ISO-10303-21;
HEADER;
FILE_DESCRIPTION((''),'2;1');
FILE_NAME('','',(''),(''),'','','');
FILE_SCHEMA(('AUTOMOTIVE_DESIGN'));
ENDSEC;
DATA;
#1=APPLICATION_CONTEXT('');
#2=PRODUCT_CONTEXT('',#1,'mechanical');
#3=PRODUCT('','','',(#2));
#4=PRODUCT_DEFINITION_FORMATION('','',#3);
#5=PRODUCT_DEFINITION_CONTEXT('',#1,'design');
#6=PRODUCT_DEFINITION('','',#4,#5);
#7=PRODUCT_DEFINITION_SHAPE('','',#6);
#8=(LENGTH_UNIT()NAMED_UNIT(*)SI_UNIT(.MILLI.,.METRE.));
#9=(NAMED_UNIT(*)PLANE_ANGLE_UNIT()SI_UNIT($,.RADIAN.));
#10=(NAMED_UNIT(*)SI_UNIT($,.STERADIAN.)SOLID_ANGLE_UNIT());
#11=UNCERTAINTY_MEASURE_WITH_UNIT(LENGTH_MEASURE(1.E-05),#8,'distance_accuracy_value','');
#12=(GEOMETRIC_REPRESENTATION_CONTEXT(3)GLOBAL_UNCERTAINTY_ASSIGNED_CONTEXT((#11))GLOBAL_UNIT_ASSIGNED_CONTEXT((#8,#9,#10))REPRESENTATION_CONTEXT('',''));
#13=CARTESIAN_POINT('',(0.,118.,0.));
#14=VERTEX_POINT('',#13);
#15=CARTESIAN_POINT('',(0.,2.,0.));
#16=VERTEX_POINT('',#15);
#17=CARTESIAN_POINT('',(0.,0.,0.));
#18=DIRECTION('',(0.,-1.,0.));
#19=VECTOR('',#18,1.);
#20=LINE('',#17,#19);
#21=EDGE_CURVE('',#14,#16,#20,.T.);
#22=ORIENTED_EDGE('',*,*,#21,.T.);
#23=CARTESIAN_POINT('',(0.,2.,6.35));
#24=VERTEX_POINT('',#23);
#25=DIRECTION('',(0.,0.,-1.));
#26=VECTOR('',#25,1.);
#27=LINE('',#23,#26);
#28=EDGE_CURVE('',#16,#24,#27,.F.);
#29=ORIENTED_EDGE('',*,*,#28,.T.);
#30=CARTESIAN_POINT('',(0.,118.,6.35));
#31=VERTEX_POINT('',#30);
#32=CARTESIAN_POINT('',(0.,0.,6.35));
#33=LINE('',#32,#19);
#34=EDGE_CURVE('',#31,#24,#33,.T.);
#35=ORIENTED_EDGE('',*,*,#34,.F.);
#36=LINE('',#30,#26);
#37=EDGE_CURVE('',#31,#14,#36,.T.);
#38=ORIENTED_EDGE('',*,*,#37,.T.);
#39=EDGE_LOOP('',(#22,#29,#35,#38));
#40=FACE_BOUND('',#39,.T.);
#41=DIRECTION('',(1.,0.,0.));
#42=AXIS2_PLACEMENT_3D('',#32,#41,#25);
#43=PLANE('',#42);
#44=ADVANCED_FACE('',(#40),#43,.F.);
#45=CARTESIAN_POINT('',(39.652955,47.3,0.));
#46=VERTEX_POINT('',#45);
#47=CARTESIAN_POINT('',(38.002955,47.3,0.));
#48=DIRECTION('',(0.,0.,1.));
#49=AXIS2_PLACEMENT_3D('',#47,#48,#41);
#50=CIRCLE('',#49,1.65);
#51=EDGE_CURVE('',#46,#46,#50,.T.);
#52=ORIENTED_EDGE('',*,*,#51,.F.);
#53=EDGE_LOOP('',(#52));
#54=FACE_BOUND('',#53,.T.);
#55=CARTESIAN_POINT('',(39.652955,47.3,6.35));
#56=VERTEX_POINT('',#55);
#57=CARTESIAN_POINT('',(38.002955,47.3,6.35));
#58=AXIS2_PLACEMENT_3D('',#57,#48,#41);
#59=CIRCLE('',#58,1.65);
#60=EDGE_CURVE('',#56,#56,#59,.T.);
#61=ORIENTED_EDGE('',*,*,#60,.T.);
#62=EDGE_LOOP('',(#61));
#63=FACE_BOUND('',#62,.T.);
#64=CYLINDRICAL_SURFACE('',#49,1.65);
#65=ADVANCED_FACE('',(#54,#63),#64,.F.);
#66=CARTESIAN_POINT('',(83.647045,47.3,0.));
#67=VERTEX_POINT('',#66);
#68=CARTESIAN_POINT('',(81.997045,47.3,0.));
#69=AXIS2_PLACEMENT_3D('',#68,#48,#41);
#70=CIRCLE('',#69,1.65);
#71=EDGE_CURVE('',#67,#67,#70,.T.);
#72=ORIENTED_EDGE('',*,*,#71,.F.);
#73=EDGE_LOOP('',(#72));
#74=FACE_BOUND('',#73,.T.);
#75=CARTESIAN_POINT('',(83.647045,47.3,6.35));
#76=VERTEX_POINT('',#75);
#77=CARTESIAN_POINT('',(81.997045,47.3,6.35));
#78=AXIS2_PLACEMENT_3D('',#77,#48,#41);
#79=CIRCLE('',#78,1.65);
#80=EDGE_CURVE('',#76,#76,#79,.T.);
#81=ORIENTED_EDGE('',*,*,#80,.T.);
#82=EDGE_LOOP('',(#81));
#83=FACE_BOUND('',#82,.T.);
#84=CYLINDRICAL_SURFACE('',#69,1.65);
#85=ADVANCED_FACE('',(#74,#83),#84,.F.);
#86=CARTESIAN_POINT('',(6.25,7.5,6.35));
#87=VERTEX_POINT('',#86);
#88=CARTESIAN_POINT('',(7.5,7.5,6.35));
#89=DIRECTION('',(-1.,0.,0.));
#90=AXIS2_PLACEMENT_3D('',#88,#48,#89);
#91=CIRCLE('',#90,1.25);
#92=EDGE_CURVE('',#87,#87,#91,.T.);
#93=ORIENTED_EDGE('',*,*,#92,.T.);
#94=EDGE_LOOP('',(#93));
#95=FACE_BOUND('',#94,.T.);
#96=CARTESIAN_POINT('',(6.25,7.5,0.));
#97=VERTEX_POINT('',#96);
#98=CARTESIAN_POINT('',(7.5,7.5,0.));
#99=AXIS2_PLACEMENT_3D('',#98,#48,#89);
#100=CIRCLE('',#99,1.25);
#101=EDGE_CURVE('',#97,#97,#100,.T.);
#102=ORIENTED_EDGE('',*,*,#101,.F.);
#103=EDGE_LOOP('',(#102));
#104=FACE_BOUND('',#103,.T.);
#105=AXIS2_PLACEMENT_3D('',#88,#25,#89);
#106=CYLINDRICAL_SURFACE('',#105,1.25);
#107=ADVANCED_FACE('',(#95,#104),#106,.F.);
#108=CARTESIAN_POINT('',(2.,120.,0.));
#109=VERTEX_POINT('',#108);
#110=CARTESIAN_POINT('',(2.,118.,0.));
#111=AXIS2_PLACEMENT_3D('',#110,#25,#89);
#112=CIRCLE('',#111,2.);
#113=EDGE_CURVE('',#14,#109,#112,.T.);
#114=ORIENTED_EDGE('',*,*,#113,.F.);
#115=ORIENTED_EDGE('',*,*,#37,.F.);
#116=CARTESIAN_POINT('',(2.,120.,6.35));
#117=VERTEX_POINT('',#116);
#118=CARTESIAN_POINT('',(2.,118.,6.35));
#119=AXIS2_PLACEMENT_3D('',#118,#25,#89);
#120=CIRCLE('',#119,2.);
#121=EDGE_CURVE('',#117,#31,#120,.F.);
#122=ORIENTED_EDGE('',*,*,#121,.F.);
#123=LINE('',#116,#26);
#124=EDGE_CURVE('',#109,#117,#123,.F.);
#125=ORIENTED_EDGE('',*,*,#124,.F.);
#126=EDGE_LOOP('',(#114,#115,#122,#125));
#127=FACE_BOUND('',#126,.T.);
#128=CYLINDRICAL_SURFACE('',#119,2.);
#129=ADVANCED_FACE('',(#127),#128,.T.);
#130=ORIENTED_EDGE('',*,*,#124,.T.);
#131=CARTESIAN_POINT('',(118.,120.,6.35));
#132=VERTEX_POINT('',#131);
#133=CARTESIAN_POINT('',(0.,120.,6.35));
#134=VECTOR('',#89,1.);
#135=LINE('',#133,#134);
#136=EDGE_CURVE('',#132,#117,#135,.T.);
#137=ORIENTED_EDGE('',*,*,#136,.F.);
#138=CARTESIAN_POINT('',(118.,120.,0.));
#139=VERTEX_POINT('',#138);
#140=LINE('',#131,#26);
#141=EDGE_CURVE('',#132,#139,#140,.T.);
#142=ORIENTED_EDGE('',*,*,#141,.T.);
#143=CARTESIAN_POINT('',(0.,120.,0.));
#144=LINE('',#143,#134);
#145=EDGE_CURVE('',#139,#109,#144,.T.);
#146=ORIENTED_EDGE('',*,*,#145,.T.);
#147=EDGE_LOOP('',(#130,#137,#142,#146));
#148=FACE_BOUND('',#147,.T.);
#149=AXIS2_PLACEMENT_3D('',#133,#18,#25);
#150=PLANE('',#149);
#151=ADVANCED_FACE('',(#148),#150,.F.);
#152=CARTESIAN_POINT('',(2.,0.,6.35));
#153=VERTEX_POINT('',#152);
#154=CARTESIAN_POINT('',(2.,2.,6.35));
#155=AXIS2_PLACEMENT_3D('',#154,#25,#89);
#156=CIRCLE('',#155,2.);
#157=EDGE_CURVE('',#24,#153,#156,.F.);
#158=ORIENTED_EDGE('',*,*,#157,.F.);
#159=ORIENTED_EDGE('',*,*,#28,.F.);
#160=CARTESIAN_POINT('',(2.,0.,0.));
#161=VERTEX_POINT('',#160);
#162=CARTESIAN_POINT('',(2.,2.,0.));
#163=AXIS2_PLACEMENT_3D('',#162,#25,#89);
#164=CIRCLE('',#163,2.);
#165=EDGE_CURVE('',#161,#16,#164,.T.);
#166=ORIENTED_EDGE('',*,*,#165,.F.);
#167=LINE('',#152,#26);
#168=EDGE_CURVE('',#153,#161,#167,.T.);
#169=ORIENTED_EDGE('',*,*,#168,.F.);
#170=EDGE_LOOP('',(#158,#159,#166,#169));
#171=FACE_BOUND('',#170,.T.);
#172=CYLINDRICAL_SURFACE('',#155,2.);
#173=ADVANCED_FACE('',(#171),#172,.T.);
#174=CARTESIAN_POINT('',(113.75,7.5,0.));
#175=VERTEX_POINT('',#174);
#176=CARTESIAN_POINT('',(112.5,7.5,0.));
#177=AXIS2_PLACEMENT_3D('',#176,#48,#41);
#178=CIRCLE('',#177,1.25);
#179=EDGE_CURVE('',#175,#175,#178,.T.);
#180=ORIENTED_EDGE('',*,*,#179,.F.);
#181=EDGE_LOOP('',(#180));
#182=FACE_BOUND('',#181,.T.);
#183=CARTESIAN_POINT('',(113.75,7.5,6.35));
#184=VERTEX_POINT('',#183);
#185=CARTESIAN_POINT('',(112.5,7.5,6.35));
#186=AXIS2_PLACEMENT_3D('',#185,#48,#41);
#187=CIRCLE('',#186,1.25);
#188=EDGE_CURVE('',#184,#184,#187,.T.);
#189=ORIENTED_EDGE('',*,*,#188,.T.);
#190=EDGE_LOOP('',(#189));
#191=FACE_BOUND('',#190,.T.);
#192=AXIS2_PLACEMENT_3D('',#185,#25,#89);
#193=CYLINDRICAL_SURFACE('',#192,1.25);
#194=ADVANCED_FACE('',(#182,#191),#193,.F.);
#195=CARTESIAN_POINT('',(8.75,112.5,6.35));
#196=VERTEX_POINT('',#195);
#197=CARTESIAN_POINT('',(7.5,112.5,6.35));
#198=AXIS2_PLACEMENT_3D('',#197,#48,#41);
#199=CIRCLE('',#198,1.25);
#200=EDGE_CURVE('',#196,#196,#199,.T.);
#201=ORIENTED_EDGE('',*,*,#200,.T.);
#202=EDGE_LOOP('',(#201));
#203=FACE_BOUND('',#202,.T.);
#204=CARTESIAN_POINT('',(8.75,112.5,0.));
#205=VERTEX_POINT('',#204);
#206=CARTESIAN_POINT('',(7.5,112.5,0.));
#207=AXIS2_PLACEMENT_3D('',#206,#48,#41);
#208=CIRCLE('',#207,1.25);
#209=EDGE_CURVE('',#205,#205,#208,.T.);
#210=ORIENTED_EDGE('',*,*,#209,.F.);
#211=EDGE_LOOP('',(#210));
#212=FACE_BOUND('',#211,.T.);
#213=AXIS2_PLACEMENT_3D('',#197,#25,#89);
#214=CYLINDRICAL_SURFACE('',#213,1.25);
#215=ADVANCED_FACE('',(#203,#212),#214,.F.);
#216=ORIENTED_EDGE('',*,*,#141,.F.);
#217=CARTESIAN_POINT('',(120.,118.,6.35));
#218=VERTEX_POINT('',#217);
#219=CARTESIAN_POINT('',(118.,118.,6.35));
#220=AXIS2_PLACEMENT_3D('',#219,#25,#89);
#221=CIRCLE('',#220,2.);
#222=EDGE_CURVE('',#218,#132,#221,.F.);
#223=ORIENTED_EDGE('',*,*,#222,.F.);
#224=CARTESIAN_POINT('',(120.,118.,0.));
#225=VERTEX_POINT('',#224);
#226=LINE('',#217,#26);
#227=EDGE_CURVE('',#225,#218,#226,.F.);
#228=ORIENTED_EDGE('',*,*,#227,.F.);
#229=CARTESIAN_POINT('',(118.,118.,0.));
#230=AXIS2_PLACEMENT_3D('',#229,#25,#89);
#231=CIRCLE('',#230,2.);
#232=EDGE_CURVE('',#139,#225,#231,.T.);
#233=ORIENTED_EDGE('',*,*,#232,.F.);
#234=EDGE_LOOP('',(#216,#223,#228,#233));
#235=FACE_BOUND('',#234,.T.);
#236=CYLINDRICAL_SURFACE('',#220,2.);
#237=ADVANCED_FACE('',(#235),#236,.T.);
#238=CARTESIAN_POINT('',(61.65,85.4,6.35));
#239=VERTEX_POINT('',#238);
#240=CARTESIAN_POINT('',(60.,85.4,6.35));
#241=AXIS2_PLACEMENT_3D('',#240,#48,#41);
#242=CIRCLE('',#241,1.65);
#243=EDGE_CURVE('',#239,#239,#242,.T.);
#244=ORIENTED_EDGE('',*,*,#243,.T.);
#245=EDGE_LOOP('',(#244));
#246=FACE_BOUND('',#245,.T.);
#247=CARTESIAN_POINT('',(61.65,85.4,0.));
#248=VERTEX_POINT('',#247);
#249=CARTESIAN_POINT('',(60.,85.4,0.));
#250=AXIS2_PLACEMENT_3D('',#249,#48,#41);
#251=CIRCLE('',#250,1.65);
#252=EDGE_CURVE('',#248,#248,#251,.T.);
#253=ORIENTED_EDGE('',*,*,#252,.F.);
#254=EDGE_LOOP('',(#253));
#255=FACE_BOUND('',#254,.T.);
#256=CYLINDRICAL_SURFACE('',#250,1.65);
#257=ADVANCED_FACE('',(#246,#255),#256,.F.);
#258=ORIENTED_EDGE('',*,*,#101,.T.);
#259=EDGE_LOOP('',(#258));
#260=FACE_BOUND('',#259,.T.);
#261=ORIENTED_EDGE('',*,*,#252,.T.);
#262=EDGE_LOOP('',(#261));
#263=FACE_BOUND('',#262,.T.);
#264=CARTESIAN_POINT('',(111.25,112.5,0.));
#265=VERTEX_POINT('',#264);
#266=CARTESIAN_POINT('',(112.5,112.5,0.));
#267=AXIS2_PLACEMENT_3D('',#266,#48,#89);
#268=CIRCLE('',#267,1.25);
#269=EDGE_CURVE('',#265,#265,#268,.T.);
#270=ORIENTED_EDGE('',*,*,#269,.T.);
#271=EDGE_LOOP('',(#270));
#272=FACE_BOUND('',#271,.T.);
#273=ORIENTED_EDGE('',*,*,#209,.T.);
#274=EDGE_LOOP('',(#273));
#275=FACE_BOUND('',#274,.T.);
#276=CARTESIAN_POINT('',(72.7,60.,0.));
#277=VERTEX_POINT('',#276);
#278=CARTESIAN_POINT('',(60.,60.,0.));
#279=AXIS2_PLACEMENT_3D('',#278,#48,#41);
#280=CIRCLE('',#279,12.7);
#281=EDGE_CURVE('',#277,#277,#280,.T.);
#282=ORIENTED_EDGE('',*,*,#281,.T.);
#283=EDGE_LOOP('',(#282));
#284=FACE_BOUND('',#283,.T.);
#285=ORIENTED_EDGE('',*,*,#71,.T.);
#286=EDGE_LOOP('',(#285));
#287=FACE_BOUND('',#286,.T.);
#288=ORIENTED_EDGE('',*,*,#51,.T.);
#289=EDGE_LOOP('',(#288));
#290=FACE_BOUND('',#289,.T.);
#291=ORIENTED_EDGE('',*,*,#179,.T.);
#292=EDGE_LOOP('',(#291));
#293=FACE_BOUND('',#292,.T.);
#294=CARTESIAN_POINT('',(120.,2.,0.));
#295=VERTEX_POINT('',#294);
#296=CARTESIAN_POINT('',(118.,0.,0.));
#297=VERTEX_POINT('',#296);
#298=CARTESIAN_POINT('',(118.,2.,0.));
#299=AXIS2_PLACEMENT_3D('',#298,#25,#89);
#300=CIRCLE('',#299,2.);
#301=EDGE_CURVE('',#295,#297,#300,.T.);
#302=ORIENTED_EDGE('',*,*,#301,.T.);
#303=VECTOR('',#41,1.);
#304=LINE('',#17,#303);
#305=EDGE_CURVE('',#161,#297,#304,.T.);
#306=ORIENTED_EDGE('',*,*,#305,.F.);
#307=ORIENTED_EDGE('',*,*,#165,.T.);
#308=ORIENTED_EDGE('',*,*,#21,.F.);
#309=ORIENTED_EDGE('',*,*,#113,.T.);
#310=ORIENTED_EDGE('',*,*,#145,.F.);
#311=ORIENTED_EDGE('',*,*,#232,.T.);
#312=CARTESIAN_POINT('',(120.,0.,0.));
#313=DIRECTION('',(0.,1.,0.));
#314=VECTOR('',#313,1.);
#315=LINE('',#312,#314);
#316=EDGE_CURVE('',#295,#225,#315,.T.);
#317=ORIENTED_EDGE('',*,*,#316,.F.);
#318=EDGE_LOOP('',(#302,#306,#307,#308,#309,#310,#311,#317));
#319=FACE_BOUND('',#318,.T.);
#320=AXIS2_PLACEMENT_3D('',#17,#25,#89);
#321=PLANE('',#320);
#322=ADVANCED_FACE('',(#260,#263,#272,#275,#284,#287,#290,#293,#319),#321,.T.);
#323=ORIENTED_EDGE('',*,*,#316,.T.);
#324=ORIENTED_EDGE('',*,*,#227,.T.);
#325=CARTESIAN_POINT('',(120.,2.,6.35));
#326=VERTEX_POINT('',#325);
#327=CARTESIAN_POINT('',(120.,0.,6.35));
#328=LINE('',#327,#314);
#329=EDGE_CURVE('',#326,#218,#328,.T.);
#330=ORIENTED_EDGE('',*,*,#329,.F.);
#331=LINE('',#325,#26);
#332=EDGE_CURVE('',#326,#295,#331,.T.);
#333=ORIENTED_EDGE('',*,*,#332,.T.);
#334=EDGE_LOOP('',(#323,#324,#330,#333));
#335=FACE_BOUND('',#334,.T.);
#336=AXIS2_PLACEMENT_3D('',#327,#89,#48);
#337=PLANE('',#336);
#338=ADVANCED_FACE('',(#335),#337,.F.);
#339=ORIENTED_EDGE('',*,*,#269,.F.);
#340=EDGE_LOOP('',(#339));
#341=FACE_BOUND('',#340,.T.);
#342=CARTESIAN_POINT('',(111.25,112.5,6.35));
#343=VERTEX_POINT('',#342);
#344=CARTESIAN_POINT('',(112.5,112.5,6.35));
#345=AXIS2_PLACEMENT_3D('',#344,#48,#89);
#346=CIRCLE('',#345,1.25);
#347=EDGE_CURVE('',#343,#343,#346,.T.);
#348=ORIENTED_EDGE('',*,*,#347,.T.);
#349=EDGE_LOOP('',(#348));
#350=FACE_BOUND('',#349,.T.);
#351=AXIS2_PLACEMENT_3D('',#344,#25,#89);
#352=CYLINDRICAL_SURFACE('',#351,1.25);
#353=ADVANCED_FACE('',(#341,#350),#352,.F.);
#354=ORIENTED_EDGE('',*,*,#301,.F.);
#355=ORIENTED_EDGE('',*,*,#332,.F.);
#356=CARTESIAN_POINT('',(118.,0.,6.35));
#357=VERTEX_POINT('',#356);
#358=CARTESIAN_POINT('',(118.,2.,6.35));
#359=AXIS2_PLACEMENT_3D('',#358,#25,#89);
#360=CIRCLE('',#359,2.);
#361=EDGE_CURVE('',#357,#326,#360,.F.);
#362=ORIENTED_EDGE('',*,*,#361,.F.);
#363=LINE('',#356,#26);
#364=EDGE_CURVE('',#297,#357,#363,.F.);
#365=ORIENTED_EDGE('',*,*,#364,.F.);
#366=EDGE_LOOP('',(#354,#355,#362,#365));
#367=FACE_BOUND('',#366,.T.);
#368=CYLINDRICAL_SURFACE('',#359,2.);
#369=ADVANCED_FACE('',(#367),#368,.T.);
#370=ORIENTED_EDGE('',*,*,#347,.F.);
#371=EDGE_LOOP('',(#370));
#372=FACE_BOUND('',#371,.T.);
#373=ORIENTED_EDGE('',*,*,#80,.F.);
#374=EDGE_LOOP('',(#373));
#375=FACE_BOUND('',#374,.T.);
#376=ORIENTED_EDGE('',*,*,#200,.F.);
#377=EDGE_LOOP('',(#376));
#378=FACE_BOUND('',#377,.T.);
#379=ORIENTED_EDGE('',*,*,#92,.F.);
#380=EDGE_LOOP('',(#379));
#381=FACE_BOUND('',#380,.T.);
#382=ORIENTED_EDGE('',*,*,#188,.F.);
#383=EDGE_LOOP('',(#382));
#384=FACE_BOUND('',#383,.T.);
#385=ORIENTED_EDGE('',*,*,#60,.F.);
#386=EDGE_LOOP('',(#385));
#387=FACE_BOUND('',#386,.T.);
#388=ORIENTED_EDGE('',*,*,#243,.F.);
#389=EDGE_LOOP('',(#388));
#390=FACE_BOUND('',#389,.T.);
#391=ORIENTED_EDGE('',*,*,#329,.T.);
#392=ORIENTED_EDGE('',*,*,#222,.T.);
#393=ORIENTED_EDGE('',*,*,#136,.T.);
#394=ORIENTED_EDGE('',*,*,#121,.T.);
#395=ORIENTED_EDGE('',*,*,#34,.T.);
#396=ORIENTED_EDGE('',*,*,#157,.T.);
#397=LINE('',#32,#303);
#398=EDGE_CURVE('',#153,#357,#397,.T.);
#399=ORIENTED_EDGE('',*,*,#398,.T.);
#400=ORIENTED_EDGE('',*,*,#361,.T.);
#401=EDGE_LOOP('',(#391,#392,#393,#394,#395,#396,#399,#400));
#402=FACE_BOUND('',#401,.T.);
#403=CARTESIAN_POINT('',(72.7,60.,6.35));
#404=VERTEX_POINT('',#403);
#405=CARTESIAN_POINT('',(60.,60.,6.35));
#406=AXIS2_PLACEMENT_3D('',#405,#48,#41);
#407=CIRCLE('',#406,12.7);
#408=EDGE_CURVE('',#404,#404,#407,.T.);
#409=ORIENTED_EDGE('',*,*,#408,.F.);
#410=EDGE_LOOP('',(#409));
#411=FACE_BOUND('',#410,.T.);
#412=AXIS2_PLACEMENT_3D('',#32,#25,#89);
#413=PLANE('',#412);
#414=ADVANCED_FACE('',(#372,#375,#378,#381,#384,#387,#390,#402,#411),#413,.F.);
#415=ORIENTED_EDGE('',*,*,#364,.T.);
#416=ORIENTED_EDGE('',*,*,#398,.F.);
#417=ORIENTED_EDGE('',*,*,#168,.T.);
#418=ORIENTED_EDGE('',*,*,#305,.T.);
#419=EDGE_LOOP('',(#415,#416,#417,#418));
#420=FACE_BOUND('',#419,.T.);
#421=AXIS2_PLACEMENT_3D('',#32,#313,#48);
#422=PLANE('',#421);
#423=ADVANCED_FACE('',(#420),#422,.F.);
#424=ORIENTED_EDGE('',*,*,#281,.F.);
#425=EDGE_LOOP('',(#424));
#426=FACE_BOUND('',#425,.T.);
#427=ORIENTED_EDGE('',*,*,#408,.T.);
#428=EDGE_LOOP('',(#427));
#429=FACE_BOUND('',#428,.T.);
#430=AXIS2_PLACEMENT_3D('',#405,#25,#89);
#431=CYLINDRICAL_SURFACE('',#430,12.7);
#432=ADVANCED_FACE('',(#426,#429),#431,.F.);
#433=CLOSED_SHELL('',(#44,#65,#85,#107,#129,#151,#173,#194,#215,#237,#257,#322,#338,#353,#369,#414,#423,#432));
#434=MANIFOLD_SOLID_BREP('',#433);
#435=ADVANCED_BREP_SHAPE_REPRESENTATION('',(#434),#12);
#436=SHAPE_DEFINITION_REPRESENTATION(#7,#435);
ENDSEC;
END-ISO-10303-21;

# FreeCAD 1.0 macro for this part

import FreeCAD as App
import Part
import Sketcher
from FreeCAD import Vector
Q = App.Units.Quantity


def edges_at(feature, points):
    """Names of the edges that pass closest to the given points."""
    edges = feature.Shape.Edges
    near = lambda p: min(range(len(edges)), key=lambda i: edges[i].distToShape(Part.Vertex(*p))[0])
    return sorted({f"Edge{near(p) + 1}" for p in points})

doc = App.newDocument("Part")
body = doc.addObject("PartDesign::Body", "Body")

sketch1 = body.newObject("Sketcher::SketchObject", "Sketch")
sketch1.AttachmentSupport = (doc.getObject("XY_Plane"), [""])
sketch1.MapMode = "FlatFace"
sketch1.addGeometry(Part.LineSegment(Vector(0, 120, 0), Vector(0, 0, 0)), False)
sketch1.addGeometry(Part.LineSegment(Vector(0, 0, 0), Vector(120, 0, 0)), False)
sketch1.addGeometry(Part.LineSegment(Vector(120, 0, 0), Vector(120, 120, 0)), False)
sketch1.addGeometry(Part.LineSegment(Vector(120, 120, 0), Vector(0, 120, 0)), False)
sketch1.addGeometry(Part.Circle(Vector(7.5, 7.5, 0), Vector(0, 0, 1), 1.25), False)
sketch1.addGeometry(Part.Circle(Vector(112.5, 7.5, 0), Vector(0, 0, 1), 1.25), False)
sketch1.addGeometry(Part.Circle(Vector(7.5, 112.5, 0), Vector(0, 0, 1), 1.25), False)
sketch1.addGeometry(Part.Circle(Vector(60, 60, 0), Vector(0, 0, 1), 12.7), False)
sketch1.addGeometry(Part.Circle(Vector(112.5, 112.5, 0), Vector(0, 0, 1), 1.25), False)
sketch1.addConstraint(Sketcher.Constraint("Coincident", 0, 2, 1, 1))
sketch1.addConstraint(Sketcher.Constraint("Coincident", 1, 2, 2, 1))
sketch1.addConstraint(Sketcher.Constraint("Coincident", 2, 2, 3, 1))
sketch1.addConstraint(Sketcher.Constraint("Coincident", 3, 2, 0, 1))
sketch1.addConstraint(Sketcher.Constraint("Vertical", 0))
sketch1.addConstraint(Sketcher.Constraint("Horizontal", 1))
sketch1.addConstraint(Sketcher.Constraint("Vertical", 2))
sketch1.addConstraint(Sketcher.Constraint("Horizontal", 3))
sketch1.addConstraint(Sketcher.Constraint("Coincident", 0, 2, -1, 1))
sketch1.addConstraint(Sketcher.Constraint("Equal", 4, 5))
sketch1.addConstraint(Sketcher.Constraint("Equal", 5, 6))
sketch1.addConstraint(Sketcher.Constraint("Equal", 6, 8))
sketch1.addConstraint(Sketcher.Constraint("Horizontal", 4, 3, 5, 3))
sketch1.addConstraint(Sketcher.Constraint("Horizontal", 6, 3, 8, 3))
sketch1.addConstraint(Sketcher.Constraint("Vertical", 4, 3, 6, 3))
sketch1.addConstraint(Sketcher.Constraint("Vertical", 5, 3, 8, 3))
sketch1.addConstraint(Sketcher.Constraint("Equal", 3, 0))
sketch1.addConstraint(Sketcher.Constraint("Diameter", 4, Q("2.5 mm")))
sketch1.addConstraint(Sketcher.Constraint("Diameter", 7, Q("25.4 mm")))
sketch1.addConstraint(Sketcher.Constraint("DistanceX", 1, 1, 1, 2, Q("120 mm")))
sketch1.addConstraint(Sketcher.Constraint("DistanceX", -1, 1, 7, 3, Q("60 mm")))
sketch1.addConstraint(Sketcher.Constraint("DistanceY", -1, 1, 7, 3, Q("60 mm")))
sketch1.addConstraint(Sketcher.Constraint("DistanceX", 4, 3, 5, 3, Q("105 mm")))
sketch1.addConstraint(Sketcher.Constraint("DistanceY", 4, 3, 6, 3, Q("105 mm")))
sketch1.addConstraint(Sketcher.Constraint("DistanceX", -1, 1, 4, 3, Q("7.5 mm")))
sketch1.addConstraint(Sketcher.Constraint("DistanceY", -1, 1, 4, 3, Q("7.5 mm")))
pad1 = body.newObject("PartDesign::Pad", "Pad")
pad1.Profile = sketch1
pad1.Length = 6.35
doc.recompute()

fillet = body.newObject("PartDesign::Fillet", "Fillet")
fillet.Base = (pad1, edges_at(pad1, [
    (0, 120, 3.175),
    (120, 120, 3.175),
    (120, 0, 3.175),
    (0, 0, 3.175),
]))
fillet.Radius = 2

sketch2 = body.newObject("Sketcher::SketchObject", "Sketch001")
sketch2.AttachmentSupport = (doc.getObject("XY_Plane"), [""])
sketch2.MapMode = "FlatFace"
sketch2.AttachmentOffset = App.Placement(Vector(0, 0, 6.35), App.Rotation())
sketch2.addGeometry(Part.Circle(Vector(60, 85.4, 0), Vector(0, 0, 1), 1.65), False)
sketch2.addGeometry(Part.Circle(Vector(38.002955, 47.3, 0), Vector(0, 0, 1), 1.65), False)
sketch2.addGeometry(Part.Circle(Vector(81.997045, 47.3, 0), Vector(0, 0, 1), 1.65), False)
sketch2.addConstraint(Sketcher.Constraint("Equal", 0, 1))
sketch2.addConstraint(Sketcher.Constraint("Equal", 1, 2))
sketch2.addConstraint(Sketcher.Constraint("Horizontal", 1, 3, 2, 3))
sketch2.addConstraint(Sketcher.Constraint("Diameter", 0, Q("3.3 mm")))
sketch2.addConstraint(Sketcher.Constraint("DistanceX", -1, 1, 0, 3, Q("60 mm")))
sketch2.addConstraint(Sketcher.Constraint("DistanceY", -1, 1, 0, 3, Q("85.4 mm")))
sketch2.addConstraint(Sketcher.Constraint("DistanceY", -1, 1, 1, 3, Q("47.3 mm")))
sketch2.addConstraint(Sketcher.Constraint("DistanceX", 1, 3, 2, 3, Q("43.994091 mm")))
sketch2.addConstraint(Sketcher.Constraint("DistanceX", -1, 1, 1, 3, Q("38.002955 mm")))
pocket1 = body.newObject("PartDesign::Pocket", "Pocket")
pocket1.Profile = sketch2
pocket1.Type = "ThroughAll"

doc.recompute()
